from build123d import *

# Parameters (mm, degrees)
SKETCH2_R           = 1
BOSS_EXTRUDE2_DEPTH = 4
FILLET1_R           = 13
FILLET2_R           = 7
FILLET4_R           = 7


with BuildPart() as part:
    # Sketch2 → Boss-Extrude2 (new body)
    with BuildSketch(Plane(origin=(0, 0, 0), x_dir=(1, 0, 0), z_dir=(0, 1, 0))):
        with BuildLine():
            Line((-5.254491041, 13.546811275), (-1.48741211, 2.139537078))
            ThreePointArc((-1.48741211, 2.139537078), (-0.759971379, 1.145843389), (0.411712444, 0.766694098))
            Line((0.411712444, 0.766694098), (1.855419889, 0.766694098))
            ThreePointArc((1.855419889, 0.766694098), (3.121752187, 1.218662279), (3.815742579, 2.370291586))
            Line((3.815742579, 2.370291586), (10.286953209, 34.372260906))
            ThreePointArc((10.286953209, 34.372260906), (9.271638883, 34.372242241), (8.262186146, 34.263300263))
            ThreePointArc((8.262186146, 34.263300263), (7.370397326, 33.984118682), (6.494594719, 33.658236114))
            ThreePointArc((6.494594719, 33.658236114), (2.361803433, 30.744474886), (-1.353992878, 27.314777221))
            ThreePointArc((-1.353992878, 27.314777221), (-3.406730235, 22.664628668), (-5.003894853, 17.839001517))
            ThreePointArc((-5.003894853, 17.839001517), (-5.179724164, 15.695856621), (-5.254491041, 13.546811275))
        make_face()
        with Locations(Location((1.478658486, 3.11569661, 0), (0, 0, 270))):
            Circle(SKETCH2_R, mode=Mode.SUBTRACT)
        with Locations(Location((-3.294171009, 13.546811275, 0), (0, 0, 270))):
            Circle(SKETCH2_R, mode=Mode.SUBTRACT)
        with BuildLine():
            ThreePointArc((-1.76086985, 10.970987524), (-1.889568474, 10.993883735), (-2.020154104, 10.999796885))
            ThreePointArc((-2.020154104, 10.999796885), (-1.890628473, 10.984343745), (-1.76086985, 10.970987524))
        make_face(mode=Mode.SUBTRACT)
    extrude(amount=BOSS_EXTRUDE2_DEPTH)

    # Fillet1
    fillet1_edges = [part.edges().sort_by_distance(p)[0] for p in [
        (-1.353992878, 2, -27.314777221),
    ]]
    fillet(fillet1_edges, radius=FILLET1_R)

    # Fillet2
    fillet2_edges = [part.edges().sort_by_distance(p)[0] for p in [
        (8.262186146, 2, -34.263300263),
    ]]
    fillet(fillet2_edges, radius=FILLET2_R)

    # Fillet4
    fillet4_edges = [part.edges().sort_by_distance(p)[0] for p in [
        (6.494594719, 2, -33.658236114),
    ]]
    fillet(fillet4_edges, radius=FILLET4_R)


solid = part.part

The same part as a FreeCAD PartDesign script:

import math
import FreeCAD as App
import Part
import Sketcher
from FreeCAD import Vector
Q = App.Units.Quantity


def edges_at(feature, points):
    """Names of the edges that pass closest to the given points."""
    edges = feature.Shape.Edges
    near = lambda p: min(range(len(edges)), key=lambda i: edges[i].distToShape(Part.Vertex(*p))[0])
    return sorted({f"Edge{near(p) + 1}" for p in points})

doc = App.newDocument("Part")
body = doc.addObject("PartDesign::Body", "Body")

sketch1 = body.newObject("Sketcher::SketchObject", "Sketch")
sketch1.AttachmentSupport = (doc.getObject("XZ_Plane"), [""])
sketch1.MapMode = "FlatFace"
sketch1.addGeometry(Part.LineSegment(Vector(-5.254491, -13.546811, 0), Vector(-1.487412, -2.139537, 0)), False)
sketch1.addGeometry(Part.ArcOfCircle(Part.Circle(Vector(0.411712, -2.766694, 0), Vector(0, 0, 1), 2), math.radians(90), math.radians(161.724979)), False)
sketch1.addGeometry(Part.LineSegment(Vector(0.411712, -0.766694, 0), Vector(1.85542, -0.766694, 0)), False)
sketch1.addGeometry(Part.ArcOfCircle(Part.Circle(Vector(1.85542, -2.766694, 0), Vector(0, 0, 1), 2), math.radians(11.431793), math.radians(90)), False)
sketch1.addGeometry(Part.LineSegment(Vector(3.815743, -2.370292, 0), Vector(10.286953, -34.372261, 0)), False)
sketch1.addGeometry(Part.ArcOfCircle(Part.Circle(Vector(9.77947, -24.935452, 0), Vector(0, 0, 1), 9.450445), math.radians(-99.23891), math.radians(-86.921768)), False)
sketch1.addGeometry(Part.ArcOfCircle(Part.Circle(Vector(13.099681, -17.246997, 0), Vector(0, 0, 1), 17.690561), math.radians(-111.92347), math.radians(-105.869702)), False)
sketch1.addGeometry(Part.ArcOfCircle(Part.Circle(Vector(26.590726, -0.766694, 0), Vector(0, 0, 1), 38.544883), math.radians(-136.468154), math.radians(-121.424168)), False)
sketch1.addGeometry(Part.ArcOfCircle(Part.Circle(Vector(45.980483, -3.641544, 0), Vector(0, 0, 1), 52.924234), math.radians(-164.439244), math.radians(-153.429143)), False)
sketch1.addGeometry(Part.ArcOfCircle(Part.Circle(Vector(40.4186, -13.033634, 0), Vector(0, 0, 1), 45.675974), math.radians(-179.356259), math.radians(-173.960989)), False)
sketch1.addGeometry(Part.Circle(Vector(1.478658, -3.115697, 0), Vector(0, 0, 1), 1), False)
sketch1.addGeometry(Part.ArcOfCircle(Part.Circle(Vector(-2, -10, 0), Vector(0, 0, 1), 1), math.radians(-91.154824), math.radians(-76.164793)), False)
sketch1.addGeometry(Part.ArcOfCircle(Part.Circle(Vector(-1, -18.999999, 0), Vector(0, 0, 1), 8.064983), math.radians(95.413471), math.radians(97.266912)), False)
sketch1.addGeometry(Part.Circle(Vector(-3.294171, -13.546811, 0), Vector(0, 0, 1), 1), False)
sketch1.addConstraint(Sketcher.Constraint("Tangent", 0, 2, 1, 2))
sketch1.addConstraint(Sketcher.Constraint("Tangent", 1, 1, 2, 1))
sketch1.addConstraint(Sketcher.Constraint("Tangent", 2, 2, 3, 2))
sketch1.addConstraint(Sketcher.Constraint("Tangent", 3, 1, 4, 1))
sketch1.addConstraint(Sketcher.Constraint("Coincident", 4, 2, 5, 2))
sketch1.addConstraint(Sketcher.Constraint("Coincident", 5, 1, 6, 2))
sketch1.addConstraint(Sketcher.Constraint("Coincident", 6, 1, 7, 2))
sketch1.addConstraint(Sketcher.Constraint("Coincident", 7, 1, 8, 2))
sketch1.addConstraint(Sketcher.Constraint("Coincident", 8, 1, 9, 2))
sketch1.addConstraint(Sketcher.Constraint("Coincident", 9, 1, 0, 1))
sketch1.addConstraint(Sketcher.Constraint("Coincident", 11, 1, 12, 2))
sketch1.addConstraint(Sketcher.Constraint("Coincident", 12, 1, 11, 2))
sketch1.addConstraint(Sketcher.Constraint("Horizontal", 2))
sketch1.addConstraint(Sketcher.Constraint("Equal", 1, 3))
sketch1.addConstraint(Sketcher.Constraint("Equal", 10, 11))
sketch1.addConstraint(Sketcher.Constraint("Equal", 11, 13))
sketch1.addConstraint(Sketcher.Constraint("Horizontal", 7, 3, 1, 1))
sketch1.addConstraint(Sketcher.Constraint("Horizontal", 13, 3, 9, 1))
sketch1.addConstraint(Sketcher.Constraint("Diameter", 10, Q("2 mm")))
sketch1.addConstraint(Sketcher.Constraint("Radius", 1, Q("2 mm")))
sketch1.addConstraint(Sketcher.Constraint("DistanceX", 11, 3, -1, 1, Q("2 mm")))
sketch1.addConstraint(Sketcher.Constraint("DistanceY", 11, 3, -1, 1, Q("10 mm")))
sketch1.addConstraint(Sketcher.Constraint("DistanceX", 12, 3, -1, 1, Q("1 mm")))
sketch1.addConstraint(Sketcher.Constraint("DistanceY", 12, 3, -1, 1, Q("18.999999 mm")))
sketch1.addConstraint(Sketcher.Constraint("Radius", 6, Q("17.690561 mm")))
sketch1.addConstraint(Sketcher.Constraint("DistanceY", 8, 1, -1, 1, Q("17.839002 mm")))
sketch1.addConstraint(Sketcher.Constraint("Radius", 5, Q("9.450445 mm")))
sketch1.addConstraint(Sketcher.Constraint("Radius", 7, Q("38.544883 mm")))
sketch1.addConstraint(Sketcher.Constraint("Radius", 8, Q("52.924234 mm")))
sketch1.addConstraint(Sketcher.Constraint("Radius", 9, Q("45.675974 mm")))
sketch1.addConstraint(Sketcher.Constraint("Radius", 12, Q("8.064983 mm")))
sketch1.addConstraint(Sketcher.Constraint("DistanceY", 12, 3, 6, 3, Q("1.753002 mm")))
sketch1.addConstraint(Sketcher.Constraint("DistanceX", -1, 1, 9, 3, Q("40.4186 mm")))
sketch1.addConstraint(Sketcher.Constraint("DistanceY", 5, 1, -1, 1, Q("34.2633 mm")))
sketch1.addConstraint(Sketcher.Constraint("DistanceY", 6, 3, 10, 3, Q("14.1313 mm")))
sketch1.addConstraint(Sketcher.Constraint("DistanceX", 8, 1, 7, 1, Q("3.649902 mm")))
sketch1.addConstraint(Sketcher.Constraint("DistanceX", 13, 3, 12, 1, Q("1.533301 mm")))
sketch1.addConstraint(Sketcher.Constraint("DistanceX", 2, 1, 2, 2, Q("1.443707 mm")))
sketch1.addConstraint(Sketcher.Constraint("DistanceX", -1, 1, 3, 3, Q("1.85542 mm")))
sketch1.addConstraint(Sketcher.Constraint("DistanceX", -1, 1, 5, 3, Q("9.77947 mm")))
sketch1.addConstraint(Sketcher.Constraint("DistanceY", 5, 3, -1, 1, Q("24.935452 mm")))
sketch1.addConstraint(Sketcher.Constraint("DistanceX", -1, 1, 10, 3, Q("1.478658 mm")))
sketch1.addConstraint(Sketcher.Constraint("DistanceY", 13, 3, -1, 1, Q("13.546811 mm")))
sketch1.addConstraint(Sketcher.Constraint("DistanceY", 3, 1, -1, 1, Q("2.370292 mm")))
sketch1.addConstraint(Sketcher.Constraint("DistanceY", 4, 2, -1, 1, Q("34.372261 mm")))
sketch1.addConstraint(Sketcher.Constraint("DistanceX", 9, 1, -1, 1, Q("5.254491 mm")))
sketch1.addConstraint(Sketcher.Constraint("DistanceY", 8, 3, 7, 3, Q("2.87485 mm")))
pad1 = body.newObject("PartDesign::Pad", "Pad")
pad1.Profile = sketch1
pad1.Length = 4
pad1.Reversed = True
doc.recompute()

fillet = body.newObject("PartDesign::Fillet", "Fillet")
fillet.Base = (pad1, edges_at(pad1, [(-1.354, 2, -27.315)]))
fillet.Radius = 13
doc.recompute()

fillet2 = body.newObject("PartDesign::Fillet", "Fillet001")
fillet2.Base = (fillet, edges_at(fillet, [(8.262, 2, -34.263)]))
fillet2.Radius = 7
doc.recompute()

fillet3 = body.newObject("PartDesign::Fillet", "Fillet002")
fillet3.Base = (fillet2, edges_at(fillet2, [(6.495, 2, -33.658)]))
fillet3.Radius = 7

doc.recompute()
